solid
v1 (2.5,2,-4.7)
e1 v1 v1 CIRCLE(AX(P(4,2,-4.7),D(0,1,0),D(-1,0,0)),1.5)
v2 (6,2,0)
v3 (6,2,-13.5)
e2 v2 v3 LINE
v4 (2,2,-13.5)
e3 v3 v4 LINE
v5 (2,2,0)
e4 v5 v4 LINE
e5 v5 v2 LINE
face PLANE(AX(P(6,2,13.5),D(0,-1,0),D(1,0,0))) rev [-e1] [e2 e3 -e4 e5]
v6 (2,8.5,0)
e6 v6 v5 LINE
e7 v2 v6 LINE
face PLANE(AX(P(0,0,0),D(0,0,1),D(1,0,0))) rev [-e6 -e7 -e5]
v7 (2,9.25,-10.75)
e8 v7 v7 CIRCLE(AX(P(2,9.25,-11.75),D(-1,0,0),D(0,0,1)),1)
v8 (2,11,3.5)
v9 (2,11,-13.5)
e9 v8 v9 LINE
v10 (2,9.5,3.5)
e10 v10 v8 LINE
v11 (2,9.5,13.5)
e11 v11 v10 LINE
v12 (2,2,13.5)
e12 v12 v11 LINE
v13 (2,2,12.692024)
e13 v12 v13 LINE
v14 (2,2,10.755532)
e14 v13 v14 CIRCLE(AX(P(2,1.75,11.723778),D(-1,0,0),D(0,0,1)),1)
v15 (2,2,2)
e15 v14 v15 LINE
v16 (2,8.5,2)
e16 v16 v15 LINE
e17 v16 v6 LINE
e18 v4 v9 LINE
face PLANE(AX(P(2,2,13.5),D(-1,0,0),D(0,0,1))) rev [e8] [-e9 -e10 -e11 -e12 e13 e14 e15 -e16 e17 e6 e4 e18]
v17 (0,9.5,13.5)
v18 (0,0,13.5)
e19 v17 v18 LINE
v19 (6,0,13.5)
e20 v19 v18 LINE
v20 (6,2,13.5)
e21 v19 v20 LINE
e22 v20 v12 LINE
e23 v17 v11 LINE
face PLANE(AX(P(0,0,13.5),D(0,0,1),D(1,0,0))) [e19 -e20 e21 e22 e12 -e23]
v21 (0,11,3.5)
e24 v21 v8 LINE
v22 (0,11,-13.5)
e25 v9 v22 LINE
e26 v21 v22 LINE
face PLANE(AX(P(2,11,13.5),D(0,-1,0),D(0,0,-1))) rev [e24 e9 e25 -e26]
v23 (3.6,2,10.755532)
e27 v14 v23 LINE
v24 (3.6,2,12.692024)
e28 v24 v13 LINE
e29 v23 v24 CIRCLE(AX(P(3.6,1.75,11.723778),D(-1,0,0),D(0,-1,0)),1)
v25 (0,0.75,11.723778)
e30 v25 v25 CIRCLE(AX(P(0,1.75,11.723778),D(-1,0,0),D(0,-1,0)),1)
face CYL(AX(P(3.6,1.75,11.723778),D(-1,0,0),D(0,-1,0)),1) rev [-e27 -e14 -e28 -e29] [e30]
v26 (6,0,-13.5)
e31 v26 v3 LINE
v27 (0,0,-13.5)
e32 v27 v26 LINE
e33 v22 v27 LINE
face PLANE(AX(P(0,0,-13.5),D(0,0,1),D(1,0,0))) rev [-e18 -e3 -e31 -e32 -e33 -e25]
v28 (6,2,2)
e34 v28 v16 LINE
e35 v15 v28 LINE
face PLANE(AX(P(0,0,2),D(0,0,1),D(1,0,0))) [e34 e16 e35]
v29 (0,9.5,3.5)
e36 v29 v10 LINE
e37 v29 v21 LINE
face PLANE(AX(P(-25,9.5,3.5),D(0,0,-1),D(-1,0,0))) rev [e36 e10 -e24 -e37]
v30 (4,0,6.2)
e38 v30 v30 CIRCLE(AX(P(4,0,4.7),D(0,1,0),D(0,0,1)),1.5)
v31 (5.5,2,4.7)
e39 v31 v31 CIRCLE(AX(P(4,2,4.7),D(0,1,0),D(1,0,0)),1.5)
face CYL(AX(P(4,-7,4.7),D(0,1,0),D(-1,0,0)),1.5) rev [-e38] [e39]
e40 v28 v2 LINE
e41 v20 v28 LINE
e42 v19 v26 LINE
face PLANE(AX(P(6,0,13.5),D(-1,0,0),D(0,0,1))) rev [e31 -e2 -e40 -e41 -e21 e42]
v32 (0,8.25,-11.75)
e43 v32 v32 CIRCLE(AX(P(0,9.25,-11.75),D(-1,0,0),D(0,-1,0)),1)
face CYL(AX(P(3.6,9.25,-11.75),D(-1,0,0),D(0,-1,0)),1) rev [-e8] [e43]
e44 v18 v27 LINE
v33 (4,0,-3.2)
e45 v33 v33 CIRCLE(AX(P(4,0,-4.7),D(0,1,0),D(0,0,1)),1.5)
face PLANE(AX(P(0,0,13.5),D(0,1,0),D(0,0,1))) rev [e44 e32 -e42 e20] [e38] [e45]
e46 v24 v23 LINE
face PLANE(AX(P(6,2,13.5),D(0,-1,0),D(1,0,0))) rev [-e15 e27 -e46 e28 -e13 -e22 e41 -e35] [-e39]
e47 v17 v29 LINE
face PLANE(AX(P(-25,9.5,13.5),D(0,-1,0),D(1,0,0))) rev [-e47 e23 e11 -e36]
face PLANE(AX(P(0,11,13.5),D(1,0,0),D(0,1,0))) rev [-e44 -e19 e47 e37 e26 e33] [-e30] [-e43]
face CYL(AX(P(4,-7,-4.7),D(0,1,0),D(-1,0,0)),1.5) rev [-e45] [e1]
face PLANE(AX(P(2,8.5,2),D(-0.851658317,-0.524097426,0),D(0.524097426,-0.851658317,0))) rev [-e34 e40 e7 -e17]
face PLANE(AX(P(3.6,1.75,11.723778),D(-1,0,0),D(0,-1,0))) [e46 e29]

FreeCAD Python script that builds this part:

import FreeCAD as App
import Part
import Sketcher
from FreeCAD import Vector

doc = App.newDocument("Part")
params = doc.addObject("Spreadsheet::Sheet", "Params")
for row, (alias, value) in enumerate([
    ("sketch1_width", "6 mm"),
    ("sketch1_width2", "4 mm"),
    ("sketch1_height", "11 mm"),
    ("pad1_length", "27 mm"),
    ("sketch2_height", "10 mm"),
    ("sketch2_width", "1.5 mm"),
    ("pocket1_length", "27 mm"),
    ("sketch3_diameter", "2 mm"),
    ("pocket2_length", "3.6 mm"),
    ("sketch4_width", "6 mm"),
    ("sketch4_height", "2 mm"),
    ("pad2_length", "3 mm"),
    ("sketch5_diameter", "3 mm"),
    ("pocket3_length", "9 mm"),
    ("sketch6_width", "4 mm"),
    ("sketch6_height", "6.5 mm"),
    ("pad3_length", "2 mm"),
    ("sketch7_width", "6 mm"),
    ("sketch7_height", "3 mm"),
    ("pocket4_length", "10 mm"),
], start=1):
    params.set(f"A{row}", alias)
    params.set(f"B{row}", "=" + value)
    params.setAlias(f"B{row}", alias)

body = doc.addObject("PartDesign::Body", "Body")

sketch1 = body.newObject("Sketcher::SketchObject", "Sketch")
sketch1.AttachmentSupport = (doc.getObject("XY_Plane"), [""])
sketch1.MapMode = "FlatFace"
sketch1.addGeometry([
    Part.LineSegment(Vector(0, 11, 0), Vector(0, 0, 0)),
    Part.LineSegment(Vector(0, 0, 0), Vector(6, 0, 0)),
    Part.LineSegment(Vector(6, 0, 0), Vector(6, 2, 0)),
    Part.LineSegment(Vector(6, 2, 0), Vector(2, 2, 0)),
    Part.LineSegment(Vector(2, 2, 0), Vector(2, 11, 0)),
    Part.LineSegment(Vector(2, 11, 0), Vector(0, 11, 0)),
], False)
sketch1.addConstraint([
    Sketcher.Constraint("Coincident", 0, 2, 1, 1),
    Sketcher.Constraint("Coincident", 1, 2, 2, 1),
    Sketcher.Constraint("Coincident", 2, 2, 3, 1),
    Sketcher.Constraint("Coincident", 3, 2, 4, 1),
    Sketcher.Constraint("Coincident", 4, 2, 5, 1),
    Sketcher.Constraint("Coincident", 5, 2, 0, 1),
    Sketcher.Constraint("Vertical", 0),
    Sketcher.Constraint("Horizontal", 1),
    Sketcher.Constraint("Vertical", 2),
    Sketcher.Constraint("Horizontal", 3),
    Sketcher.Constraint("Vertical", 4),
    Sketcher.Constraint("Horizontal", 5),
    Sketcher.Constraint("Coincident", 0, 2, -1, 1),
    Sketcher.Constraint("Equal", 5, 2),
    Sketcher.Constraint("DistanceX", 1, 1, 1, 2, 6.0),
    Sketcher.Constraint("DistanceX", 3, 2, 3, 1, 4.0),
    Sketcher.Constraint("DistanceY", 0, 2, 0, 1, 11.0),
])
sketch1.setExpression("Constraints[14]", "Params.sketch1_width")
sketch1.setExpression("Constraints[15]", "Params.sketch1_width2")
sketch1.setExpression("Constraints[16]", "Params.sketch1_height")
pad1 = body.newObject("PartDesign::Pad", "Pad")
pad1.Profile = sketch1
pad1.setExpression("Length", "Params.pad1_length")
pad1.Midplane = True

sketch2 = body.newObject("Sketcher::SketchObject", "Sketch001")
sketch2.AttachmentSupport = (doc.getObject("YZ_Plane"), [""])
sketch2.MapMode = "FlatFace"
sketch2.AttachmentOffset = App.Placement(Vector(0, 0, 2), App.Rotation())
sketch2.addGeometry([
    Part.LineSegment(Vector(11, 13.5, 0), Vector(9.5, 13.5, 0)),
    Part.LineSegment(Vector(9.5, 13.5, 0), Vector(9.5, 3.5, 0)),
    Part.LineSegment(Vector(9.5, 3.5, 0), Vector(11, 3.5, 0)),
    Part.LineSegment(Vector(11, 3.5, 0), Vector(11, 13.5, 0)),
], False)
sketch2.addConstraint([
    Sketcher.Constraint("Coincident", 0, 2, 1, 1),
    Sketcher.Constraint("Coincident", 1, 2, 2, 1),
    Sketcher.Constraint("Coincident", 2, 2, 3, 1),
    Sketcher.Constraint("Coincident", 3, 2, 0, 1),
    Sketcher.Constraint("Horizontal", 0),
    Sketcher.Constraint("Vertical", 1),
    Sketcher.Constraint("Horizontal", 2),
    Sketcher.Constraint("Vertical", 3),
    Sketcher.Constraint("DistanceY", 1, 2, 1, 1, 10.0),
    Sketcher.Constraint("DistanceX", 0, 2, 0, 1, 1.5),
    Sketcher.Constraint("DistanceX", -1, 1, 2, 2, 11.0),
    Sketcher.Constraint("DistanceY", -1, 1, 0, 2, 13.5),
])
sketch2.setExpression("Constraints[8]", "Params.sketch2_height")
sketch2.setExpression("Constraints[9]", "Params.sketch2_width")
pocket1 = body.newObject("PartDesign::Pocket", "Pocket")
pocket1.Profile = sketch2
pocket1.setExpression("Length", "Params.pocket1_length")

sketch3 = body.newObject("Sketcher::SketchObject", "Sketch002")
sketch3.AttachmentSupport = (doc.getObject("YZ_Plane"), [""])
sketch3.MapMode = "FlatFace"
sketch3.addGeometry([
    Part.Circle(Vector(9.25, -11.75, 0), Vector(0, 0, 1), 1),
    Part.Circle(Vector(1.75, 11.723778, 0), Vector(0, 0, 1), 1),
], False)
sketch3.addConstraint([
    Sketcher.Constraint("Equal", 0, 1),
    Sketcher.Constraint("Diameter", 0, 2.0),
    Sketcher.Constraint("DistanceX", 1, 3, 0, 3, 7.5),
    Sketcher.Constraint("DistanceX", -1, 1, 0, 3, 9.25),
    Sketcher.Constraint("DistanceY", 0, 3, -1, 1, 11.75),
    Sketcher.Constraint("DistanceY", -1, 1, 1, 3, 11.723778),
])
sketch3.setExpression("Constraints[1]", "Params.sketch3_diameter")
pocket2 = body.newObject("PartDesign::Pocket", "Pocket001")
pocket2.Profile = sketch3
pocket2.setExpression("Length", "Params.pocket2_length")
pocket2.Reversed = True

sketch4 = body.newObject("Sketcher::SketchObject", "Sketch003")
sketch4.AttachmentSupport = (doc.getObject("XY_Plane"), [""])
sketch4.MapMode = "FlatFace"
sketch4.AttachmentOffset = App.Placement(Vector(0, 0, 13.5), App.Rotation())
sketch4.addGeometry([
    Part.LineSegment(Vector(0, 2, 0), Vector(0, 0, 0)),
    Part.LineSegment(Vector(0, 0, 0), Vector(6, 0, 0)),
    Part.LineSegment(Vector(6, 0, 0), Vector(6, 2, 0)),
    Part.LineSegment(Vector(6, 2, 0), Vector(0, 2, 0)),
], False)
sketch4.addConstraint([
    Sketcher.Constraint("Coincident", 0, 2, 1, 1),
    Sketcher.Constraint("Coincident", 1, 2, 2, 1),
    Sketcher.Constraint("Coincident", 2, 2, 3, 1),
    Sketcher.Constraint("Coincident", 3, 2, 0, 1),
    Sketcher.Constraint("Vertical", 0),
    Sketcher.Constraint("Horizontal", 1),
    Sketcher.Constraint("Vertical", 2),
    Sketcher.Constraint("Horizontal", 3),
    Sketcher.Constraint("Coincident", 0, 2, -1, 1),
    Sketcher.Constraint("DistanceX", 1, 1, 1, 2, 6.0),
    Sketcher.Constraint("DistanceY", 0, 2, 0, 1, 2.0),
])
sketch4.setExpression("Constraints[9]", "Params.sketch4_width")
sketch4.setExpression("Constraints[10]", "Params.sketch4_height")
pad2 = body.newObject("PartDesign::Pad", "Pad001")
pad2.Profile = sketch4
pad2.setExpression("Length", "Params.pad2_length")

sketch5 = body.newObject("Sketcher::SketchObject", "Sketch004")
sketch5.AttachmentSupport = (doc.getObject("XZ_Plane"), [""])
sketch5.MapMode = "FlatFace"
sketch5.AttachmentOffset = App.Placement(Vector(0, 0, -2), App.Rotation())
sketch5.addGeometry([
    Part.Circle(Vector(4, -4.7, 0), Vector(0, 0, 1), 1.5),
    Part.Circle(Vector(4, 4.7, 0), Vector(0, 0, 1), 1.5),
], False)
sketch5.addConstraint([
    Sketcher.Constraint("Equal", 0, 1),
    Sketcher.Constraint("Symmetric", 0, 3, 1, 3, -1),
    Sketcher.Constraint("Diameter", 0, 3.0),
    Sketcher.Constraint("DistanceX", -1, 1, 0, 3, 4.0),
    Sketcher.Constraint("DistanceY", 0, 3, -1, 1, 4.7),
])
sketch5.setExpression("Constraints[2]", "Params.sketch5_diameter")
pocket3 = body.newObject("PartDesign::Pocket", "Pocket002")
pocket3.Profile = sketch5
pocket3.setExpression("Length", "Params.pocket3_length")
pocket3.Reversed = True

sketch6 = body.newObject("Sketcher::SketchObject", "Sketch005")
sketch6.AttachmentSupport = (doc.getObject("XY_Plane"), [""])
sketch6.MapMode = "FlatFace"
sketch6.addGeometry([
    Part.LineSegment(Vector(6, 2, 0), Vector(2, 8.5, 0)),
    Part.LineSegment(Vector(2, 8.5, 0), Vector(2, 2, 0)),
    Part.LineSegment(Vector(2, 2, 0), Vector(6, 2, 0)),
], False)
sketch6.addConstraint([
    Sketcher.Constraint("Coincident", 0, 2, 1, 1),
    Sketcher.Constraint("Coincident", 1, 2, 2, 1),
    Sketcher.Constraint("Coincident", 2, 2, 0, 1),
    Sketcher.Constraint("Vertical", 1),
    Sketcher.Constraint("Horizontal", 2),
    Sketcher.Constraint("DistanceX", 2, 1, 2, 2, 4.0),
    Sketcher.Constraint("DistanceY", 1, 2, 1, 1, 6.5),
    Sketcher.Constraint("DistanceX", -1, 1, 0, 2, 2.0),
    Sketcher.Constraint("DistanceY", -1, 1, 1, 2, 2.0),
])
sketch6.setExpression("Constraints[5]", "Params.sketch6_width")
sketch6.setExpression("Constraints[6]", "Params.sketch6_height")
pad3 = body.newObject("PartDesign::Pad", "Pad002")
pad3.Profile = sketch6
pad3.setExpression("Length", "Params.pad3_length")

sketch7 = body.newObject("Sketcher::SketchObject", "Sketch006")
sketch7.AttachmentSupport = (doc.getObject("XZ_Plane"), [""])
sketch7.MapMode = "FlatFace"
sketch7.AttachmentOffset = App.Placement(Vector(0, 0, -2), App.Rotation())
sketch7.addGeometry([
    Part.LineSegment(Vector(0, 13.5, 0), Vector(0, 16.5, 0)),
    Part.LineSegment(Vector(0, 16.5, 0), Vector(6, 16.5, 0)),
    Part.LineSegment(Vector(6, 16.5, 0), Vector(6, 13.5, 0)),
    Part.LineSegment(Vector(6, 13.5, 0), Vector(0, 13.5, 0)),
], False)
sketch7.addConstraint([
    Sketcher.Constraint("Coincident", 0, 2, 1, 1),
    Sketcher.Constraint("Coincident", 1, 2, 2, 1),
    Sketcher.Constraint("Coincident", 2, 2, 3, 1),
    Sketcher.Constraint("Coincident", 3, 2, 0, 1),
    Sketcher.Constraint("Vertical", 0),
    Sketcher.Constraint("Horizontal", 1),
    Sketcher.Constraint("Vertical", 2),
    Sketcher.Constraint("Horizontal", 3),
    Sketcher.Constraint("PointOnObject", 0, 2, -2),
    Sketcher.Constraint("DistanceX", 1, 1, 1, 2, 6.0),
    Sketcher.Constraint("DistanceY", 0, 1, 0, 2, 3.0),
    Sketcher.Constraint("DistanceY", -1, 1, 0, 2, 16.5),
])
sketch7.setExpression("Constraints[9]", "Params.sketch7_width")
sketch7.setExpression("Constraints[10]", "Params.sketch7_height")
pocket4 = body.newObject("PartDesign::Pocket", "Pocket003")
pocket4.Profile = sketch7
pocket4.setExpression("Length", "Params.pocket4_length")
pocket4.Reversed = True

doc.recompute()
